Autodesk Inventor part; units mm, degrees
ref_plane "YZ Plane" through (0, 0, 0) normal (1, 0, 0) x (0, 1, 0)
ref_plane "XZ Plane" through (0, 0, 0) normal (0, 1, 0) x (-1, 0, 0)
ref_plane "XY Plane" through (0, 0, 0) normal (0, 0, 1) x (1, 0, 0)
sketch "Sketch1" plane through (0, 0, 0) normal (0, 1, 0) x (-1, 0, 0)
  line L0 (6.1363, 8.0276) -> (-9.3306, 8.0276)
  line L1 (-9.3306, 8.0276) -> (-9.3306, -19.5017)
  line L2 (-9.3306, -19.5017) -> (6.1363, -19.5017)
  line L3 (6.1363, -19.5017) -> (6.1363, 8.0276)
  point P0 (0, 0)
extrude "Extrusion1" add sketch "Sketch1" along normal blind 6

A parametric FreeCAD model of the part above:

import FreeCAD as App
import Part
import Sketcher

V = App.Vector


def add_polygon(sketch, points):
    """Adds a closed chain of lines whose ends are joined by coincident constraints."""
    first, n = sketch.GeometryCount, len(points)
    for a, b in zip(points, points[1:] + points[:1]):
        sketch.addGeometry(Part.LineSegment(App.Vector(*a, 0), App.Vector(*b, 0)), False)
    for i in range(n):
        sketch.addConstraint(Sketcher.Constraint("Coincident", first + i, 2, first + (i + 1) % n, 1))

doc = App.newDocument("Part")
body = doc.addObject("PartDesign::Body", "Body")

sketch1 = doc.addObject("Sketcher::SketchObject", "Sketch")
body.addObject(sketch1)
sketch1.AttachmentSupport = (doc.XZ_Plane, [""])
sketch1.MapMode = "FlatFace"
add_polygon(sketch1, [(-6, -20), (-6, 8), (9, 8), (9, -20)])
sketch1.addConstraint([
    Sketcher.Constraint("Vertical", 0),
    Sketcher.Constraint("Horizontal", 1),
    Sketcher.Constraint("Vertical", 2),
    Sketcher.Constraint("Horizontal", 3),
    Sketcher.Constraint("DistanceX", 1, 1, 1, 2, 15.467),
    Sketcher.Constraint("DistanceY", 0, 1, 0, 2, 27.5293),
    Sketcher.Constraint("DistanceX", 0, 2, -1, 1, 6.1363),
    Sketcher.Constraint("DistanceY", -1, 1, 0, 2, 8.0276),
])
pad1 = doc.addObject("PartDesign::Pad", "Pad")
body.addObject(pad1)
pad1.Profile = sketch1
pad1.Length = 6
pad1.Reversed = True

doc.recompute()
